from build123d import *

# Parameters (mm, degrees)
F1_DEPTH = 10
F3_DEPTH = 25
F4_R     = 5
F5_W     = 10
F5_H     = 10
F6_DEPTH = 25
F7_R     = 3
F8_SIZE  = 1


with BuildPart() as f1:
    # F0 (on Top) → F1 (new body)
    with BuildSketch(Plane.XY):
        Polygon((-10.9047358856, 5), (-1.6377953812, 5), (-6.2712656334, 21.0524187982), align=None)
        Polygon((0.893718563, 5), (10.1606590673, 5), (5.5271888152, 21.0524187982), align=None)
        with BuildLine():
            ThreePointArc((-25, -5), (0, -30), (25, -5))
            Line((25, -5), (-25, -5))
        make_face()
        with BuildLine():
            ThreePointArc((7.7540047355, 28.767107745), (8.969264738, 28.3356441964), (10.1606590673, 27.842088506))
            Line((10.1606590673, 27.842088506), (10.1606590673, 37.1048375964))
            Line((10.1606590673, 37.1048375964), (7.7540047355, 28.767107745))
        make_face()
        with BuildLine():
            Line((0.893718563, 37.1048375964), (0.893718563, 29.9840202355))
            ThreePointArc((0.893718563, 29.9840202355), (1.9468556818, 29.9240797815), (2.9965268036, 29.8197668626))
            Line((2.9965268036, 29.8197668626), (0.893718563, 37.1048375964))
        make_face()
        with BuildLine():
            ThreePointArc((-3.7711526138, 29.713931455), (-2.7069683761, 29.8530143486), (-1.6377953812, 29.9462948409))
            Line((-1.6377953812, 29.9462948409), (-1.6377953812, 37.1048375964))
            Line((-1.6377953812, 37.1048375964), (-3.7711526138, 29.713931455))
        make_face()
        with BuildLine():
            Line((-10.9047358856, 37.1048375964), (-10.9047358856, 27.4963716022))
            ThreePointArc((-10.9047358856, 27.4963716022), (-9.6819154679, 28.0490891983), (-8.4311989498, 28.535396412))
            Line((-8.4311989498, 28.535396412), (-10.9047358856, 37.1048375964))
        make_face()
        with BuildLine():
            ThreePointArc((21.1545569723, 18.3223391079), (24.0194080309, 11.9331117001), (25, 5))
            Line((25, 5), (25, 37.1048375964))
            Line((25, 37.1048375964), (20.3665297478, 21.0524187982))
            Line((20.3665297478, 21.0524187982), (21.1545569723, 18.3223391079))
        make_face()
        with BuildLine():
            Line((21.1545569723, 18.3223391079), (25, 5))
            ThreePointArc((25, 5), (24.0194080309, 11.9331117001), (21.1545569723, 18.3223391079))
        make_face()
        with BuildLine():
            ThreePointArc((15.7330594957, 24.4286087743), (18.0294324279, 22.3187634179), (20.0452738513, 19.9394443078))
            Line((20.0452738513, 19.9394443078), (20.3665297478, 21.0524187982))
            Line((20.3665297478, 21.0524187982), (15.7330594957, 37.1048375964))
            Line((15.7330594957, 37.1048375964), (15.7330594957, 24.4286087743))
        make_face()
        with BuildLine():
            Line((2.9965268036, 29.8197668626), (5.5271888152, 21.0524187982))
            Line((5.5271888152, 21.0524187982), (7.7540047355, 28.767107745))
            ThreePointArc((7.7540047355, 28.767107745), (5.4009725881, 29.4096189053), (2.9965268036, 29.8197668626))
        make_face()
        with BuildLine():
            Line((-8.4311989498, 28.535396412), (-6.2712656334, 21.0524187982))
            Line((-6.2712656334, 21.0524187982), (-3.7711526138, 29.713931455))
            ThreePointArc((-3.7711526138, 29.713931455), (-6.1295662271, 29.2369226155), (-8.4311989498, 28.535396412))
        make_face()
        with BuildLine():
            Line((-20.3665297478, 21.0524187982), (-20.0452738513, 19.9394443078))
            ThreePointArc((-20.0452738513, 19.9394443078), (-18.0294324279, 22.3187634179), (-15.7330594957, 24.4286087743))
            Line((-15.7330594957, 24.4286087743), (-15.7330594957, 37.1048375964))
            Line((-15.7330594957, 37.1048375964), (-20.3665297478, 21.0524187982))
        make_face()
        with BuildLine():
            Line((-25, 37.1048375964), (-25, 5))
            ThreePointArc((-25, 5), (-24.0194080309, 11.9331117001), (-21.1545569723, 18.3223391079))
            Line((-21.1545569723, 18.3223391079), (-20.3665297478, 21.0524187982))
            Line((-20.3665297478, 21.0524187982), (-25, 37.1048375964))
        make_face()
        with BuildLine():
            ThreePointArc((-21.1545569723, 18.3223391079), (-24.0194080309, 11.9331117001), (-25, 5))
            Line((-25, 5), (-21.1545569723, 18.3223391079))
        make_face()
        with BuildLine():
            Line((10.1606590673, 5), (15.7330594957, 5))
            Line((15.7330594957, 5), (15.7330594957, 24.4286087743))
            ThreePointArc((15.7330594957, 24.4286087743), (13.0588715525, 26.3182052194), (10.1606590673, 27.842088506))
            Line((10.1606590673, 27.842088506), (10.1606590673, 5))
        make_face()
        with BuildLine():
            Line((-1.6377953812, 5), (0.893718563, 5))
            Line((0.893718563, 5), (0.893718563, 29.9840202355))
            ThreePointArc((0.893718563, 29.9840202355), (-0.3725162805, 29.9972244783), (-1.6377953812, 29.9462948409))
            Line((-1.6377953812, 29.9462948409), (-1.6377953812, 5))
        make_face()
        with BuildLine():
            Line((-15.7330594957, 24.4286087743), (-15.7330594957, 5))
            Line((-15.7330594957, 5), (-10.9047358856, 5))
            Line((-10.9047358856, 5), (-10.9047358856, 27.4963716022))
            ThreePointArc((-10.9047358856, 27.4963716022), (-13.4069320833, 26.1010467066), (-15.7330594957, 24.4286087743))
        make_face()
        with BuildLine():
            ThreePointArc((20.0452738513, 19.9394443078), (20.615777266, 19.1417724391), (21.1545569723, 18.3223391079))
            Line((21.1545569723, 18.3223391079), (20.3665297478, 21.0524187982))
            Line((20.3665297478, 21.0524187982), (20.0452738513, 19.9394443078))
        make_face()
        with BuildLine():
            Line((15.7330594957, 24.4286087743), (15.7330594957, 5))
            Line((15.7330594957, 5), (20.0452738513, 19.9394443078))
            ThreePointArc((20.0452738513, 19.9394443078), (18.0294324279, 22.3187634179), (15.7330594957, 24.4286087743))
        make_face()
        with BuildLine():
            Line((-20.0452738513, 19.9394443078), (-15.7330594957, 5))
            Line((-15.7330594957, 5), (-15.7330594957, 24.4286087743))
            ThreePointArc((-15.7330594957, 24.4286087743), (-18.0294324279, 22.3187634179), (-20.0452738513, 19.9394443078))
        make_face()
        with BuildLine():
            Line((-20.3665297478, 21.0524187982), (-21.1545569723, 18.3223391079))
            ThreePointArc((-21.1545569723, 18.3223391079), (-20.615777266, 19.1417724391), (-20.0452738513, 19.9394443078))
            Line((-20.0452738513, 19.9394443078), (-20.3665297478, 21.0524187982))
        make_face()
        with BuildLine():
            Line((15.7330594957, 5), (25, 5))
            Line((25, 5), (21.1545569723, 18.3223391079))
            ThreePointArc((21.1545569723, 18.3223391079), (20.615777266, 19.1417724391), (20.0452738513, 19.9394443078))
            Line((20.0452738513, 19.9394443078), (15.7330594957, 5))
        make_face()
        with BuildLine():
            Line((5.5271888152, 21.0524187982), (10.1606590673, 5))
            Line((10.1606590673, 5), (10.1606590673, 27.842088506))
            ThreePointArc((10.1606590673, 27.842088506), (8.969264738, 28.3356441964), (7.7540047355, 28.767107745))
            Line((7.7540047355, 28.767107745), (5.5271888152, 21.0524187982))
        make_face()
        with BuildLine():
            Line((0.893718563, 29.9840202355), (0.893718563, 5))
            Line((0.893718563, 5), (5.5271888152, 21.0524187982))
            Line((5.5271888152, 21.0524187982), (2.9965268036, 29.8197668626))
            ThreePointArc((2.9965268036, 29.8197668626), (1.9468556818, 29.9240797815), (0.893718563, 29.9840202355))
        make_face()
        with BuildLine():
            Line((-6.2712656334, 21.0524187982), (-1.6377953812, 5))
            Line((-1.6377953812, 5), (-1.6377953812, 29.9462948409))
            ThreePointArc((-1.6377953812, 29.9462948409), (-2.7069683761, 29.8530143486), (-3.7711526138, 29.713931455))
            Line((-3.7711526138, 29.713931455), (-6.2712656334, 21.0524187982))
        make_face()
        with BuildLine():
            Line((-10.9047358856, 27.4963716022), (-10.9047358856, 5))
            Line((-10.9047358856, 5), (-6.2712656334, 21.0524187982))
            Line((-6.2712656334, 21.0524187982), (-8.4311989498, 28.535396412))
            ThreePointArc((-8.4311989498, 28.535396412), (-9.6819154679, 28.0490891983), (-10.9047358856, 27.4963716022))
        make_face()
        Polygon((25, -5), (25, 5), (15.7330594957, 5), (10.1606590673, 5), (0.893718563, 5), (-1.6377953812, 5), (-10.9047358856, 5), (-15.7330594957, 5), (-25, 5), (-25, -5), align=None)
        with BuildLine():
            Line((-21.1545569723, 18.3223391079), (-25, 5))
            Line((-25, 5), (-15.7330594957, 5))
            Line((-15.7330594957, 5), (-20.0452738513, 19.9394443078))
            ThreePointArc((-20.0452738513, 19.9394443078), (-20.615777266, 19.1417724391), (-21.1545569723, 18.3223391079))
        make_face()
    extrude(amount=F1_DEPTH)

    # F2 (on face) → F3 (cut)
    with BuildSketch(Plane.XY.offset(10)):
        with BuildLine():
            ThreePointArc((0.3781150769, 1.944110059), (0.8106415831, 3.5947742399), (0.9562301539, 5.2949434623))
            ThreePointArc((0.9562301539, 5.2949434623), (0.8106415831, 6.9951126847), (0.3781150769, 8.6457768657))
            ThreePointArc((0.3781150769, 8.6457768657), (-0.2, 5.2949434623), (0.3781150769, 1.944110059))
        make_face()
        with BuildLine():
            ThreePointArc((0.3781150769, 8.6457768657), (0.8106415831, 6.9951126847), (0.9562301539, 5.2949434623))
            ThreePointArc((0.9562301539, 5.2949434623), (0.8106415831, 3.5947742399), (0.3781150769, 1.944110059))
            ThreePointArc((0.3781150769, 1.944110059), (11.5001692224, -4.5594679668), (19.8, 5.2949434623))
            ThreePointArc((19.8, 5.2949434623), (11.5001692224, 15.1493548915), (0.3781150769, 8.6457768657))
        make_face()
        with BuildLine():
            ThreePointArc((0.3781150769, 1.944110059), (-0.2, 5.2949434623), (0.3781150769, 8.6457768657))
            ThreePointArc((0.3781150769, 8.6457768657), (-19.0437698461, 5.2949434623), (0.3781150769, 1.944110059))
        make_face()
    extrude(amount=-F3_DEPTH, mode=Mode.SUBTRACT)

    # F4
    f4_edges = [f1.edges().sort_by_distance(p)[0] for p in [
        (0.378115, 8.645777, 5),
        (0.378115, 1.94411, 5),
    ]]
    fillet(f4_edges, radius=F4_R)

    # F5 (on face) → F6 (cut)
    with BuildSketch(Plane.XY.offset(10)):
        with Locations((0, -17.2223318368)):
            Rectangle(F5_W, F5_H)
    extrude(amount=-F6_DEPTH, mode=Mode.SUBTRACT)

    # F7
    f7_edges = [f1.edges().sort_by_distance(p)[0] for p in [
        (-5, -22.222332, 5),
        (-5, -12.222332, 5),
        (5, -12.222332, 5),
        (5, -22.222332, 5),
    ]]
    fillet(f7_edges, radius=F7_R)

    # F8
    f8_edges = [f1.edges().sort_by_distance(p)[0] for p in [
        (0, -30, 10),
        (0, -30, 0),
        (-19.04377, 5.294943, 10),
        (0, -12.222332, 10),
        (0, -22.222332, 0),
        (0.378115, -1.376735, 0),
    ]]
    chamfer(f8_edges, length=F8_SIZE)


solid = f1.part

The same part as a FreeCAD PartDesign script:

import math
import FreeCAD as App
import Part
import Sketcher
from FreeCAD import Vector


def edges_at(feature, points):
    """Names of the edges that pass closest to the given points."""
    edges = feature.Shape.Edges
    near = lambda p: min(range(len(edges)), key=lambda i: edges[i].distToShape(Part.Vertex(*p))[0])
    return sorted({f"Edge{near(p) + 1}" for p in points})


def add_polygon(sketch, points):
    """Adds a closed chain of lines whose ends are joined by coincident constraints."""
    first, n = sketch.GeometryCount, len(points)
    for a, b in zip(points, points[1:] + points[:1]):
        sketch.addGeometry(Part.LineSegment(App.Vector(*a, 0), App.Vector(*b, 0)), False)
    for i in range(n):
        sketch.addConstraint(Sketcher.Constraint("Coincident", first + i, 2, first + (i + 1) % n, 1))

doc = App.newDocument("Part")
body = doc.addObject("PartDesign::Body", "Body")

# Sketch on XY plane
sketch1 = body.newObject("Sketcher::SketchObject", "Sketch")
sketch1.AttachmentSupport = (doc.getObject("XY_Plane"), [""])
sketch1.MapMode = "FlatFace"
sketch1.addGeometry(Part.LineSegment(Vector(-25, 37.1, 0), Vector(-25, -5, 0)), False)
sketch1.addGeometry(Part.ArcOfCircle(Part.Circle(Vector(0, -5, 0), Vector(0, 0, 1), 25), math.radians(180), math.radians(360)), False)
sketch1.addGeometry(Part.LineSegment(Vector(25, -5, 0), Vector(25, 37.1, 0)), False)
sketch1.addGeometry(Part.LineSegment(Vector(25, 37.1, 0), Vector(20.4, 21.1, 0)), False)
sketch1.addGeometry(Part.LineSegment(Vector(20.4, 21.1, 0), Vector(15.7, 37.1, 0)), False)
sketch1.addGeometry(Part.LineSegment(Vector(15.7, 37.1, 0), Vector(15.7, 24.4, 0)), False)
sketch1.addGeometry(Part.ArcOfCircle(Part.Circle(Vector(0, 5, 0), Vector(0, 0, 1), 25), math.radians(51), math.radians(66.02)), False)
sketch1.addGeometry(Part.LineSegment(Vector(10.2, 27.8, 0), Vector(10.2, 37.1, 0)), False)
sketch1.addGeometry(Part.LineSegment(Vector(10.2, 37.1, 0), Vector(7.8, 28.8, 0)), False)
sketch1.addGeometry(Part.ArcOfCircle(Part.Circle(Vector(0, 5, 0), Vector(0, 0, 1), 25), math.radians(71.93), math.radians(83.12)), False)
sketch1.addGeometry(Part.LineSegment(Vector(3, 29.8, 0), Vector(0.9, 37.1, 0)), False)
sketch1.addGeometry(Part.LineSegment(Vector(0.9, 37.1, 0), Vector(0.9, 30, 0)), False)
sketch1.addGeometry(Part.ArcOfCircle(Part.Circle(Vector(0, 5, 0), Vector(0, 0, 1), 25), math.radians(87.95), math.radians(93.76)), False)
sketch1.addGeometry(Part.LineSegment(Vector(-1.6, 29.9, 0), Vector(-1.6, 37.1, 0)), False)
sketch1.addGeometry(Part.LineSegment(Vector(-1.6, 37.1, 0), Vector(-3.8, 29.7, 0)), False)
sketch1.addGeometry(Part.ArcOfCircle(Part.Circle(Vector(0, 5, 0), Vector(0, 0, 1), 25), math.radians(98.68), math.radians(109.71)), False)
sketch1.addGeometry(Part.LineSegment(Vector(-8.4, 28.5, 0), Vector(-10.9, 37.1, 0)), False)
sketch1.addGeometry(Part.LineSegment(Vector(-10.9, 37.1, 0), Vector(-10.9, 27.5, 0)), False)
sketch1.addGeometry(Part.ArcOfCircle(Part.Circle(Vector(0, 5, 0), Vector(0, 0, 1), 25), math.radians(115.86), math.radians(129)), False)
sketch1.addGeometry(Part.LineSegment(Vector(-15.7, 24.4, 0), Vector(-15.7, 37.1, 0)), False)
sketch1.addGeometry(Part.LineSegment(Vector(-15.7, 37.1, 0), Vector(-20.4, 21.1, 0)), False)
sketch1.addGeometry(Part.LineSegment(Vector(-20.4, 21.1, 0), Vector(-25, 37.1, 0)), False)
sketch1.addConstraint(Sketcher.Constraint("Tangent", 0, 2, 1, 1))
sketch1.addConstraint(Sketcher.Constraint("Tangent", 1, 2, 2, 1))
sketch1.addConstraint(Sketcher.Constraint("Coincident", 2, 2, 3, 1))
sketch1.addConstraint(Sketcher.Constraint("Coincident", 3, 2, 4, 1))
sketch1.addConstraint(Sketcher.Constraint("Coincident", 4, 2, 5, 1))
sketch1.addConstraint(Sketcher.Constraint("Coincident", 5, 2, 6, 1))
sketch1.addConstraint(Sketcher.Constraint("Coincident", 6, 2, 7, 1))
sketch1.addConstraint(Sketcher.Constraint("Coincident", 7, 2, 8, 1))
sketch1.addConstraint(Sketcher.Constraint("Coincident", 8, 2, 9, 1))
sketch1.addConstraint(Sketcher.Constraint("Coincident", 9, 2, 10, 1))
sketch1.addConstraint(Sketcher.Constraint("Coincident", 10, 2, 11, 1))
sketch1.addConstraint(Sketcher.Constraint("Coincident", 11, 2, 12, 1))
sketch1.addConstraint(Sketcher.Constraint("Coincident", 12, 2, 13, 1))
sketch1.addConstraint(Sketcher.Constraint("Coincident", 13, 2, 14, 1))
sketch1.addConstraint(Sketcher.Constraint("Coincident", 14, 2, 15, 1))
sketch1.addConstraint(Sketcher.Constraint("Coincident", 15, 2, 16, 1))
sketch1.addConstraint(Sketcher.Constraint("Coincident", 16, 2, 17, 1))
sketch1.addConstraint(Sketcher.Constraint("Coincident", 17, 2, 18, 1))
sketch1.addConstraint(Sketcher.Constraint("Coincident", 18, 2, 19, 1))
sketch1.addConstraint(Sketcher.Constraint("Coincident", 19, 2, 20, 1))
sketch1.addConstraint(Sketcher.Constraint("Coincident", 20, 2, 21, 1))
sketch1.addConstraint(Sketcher.Constraint("Coincident", 21, 2, 0, 1))
sketch1.addConstraint(Sketcher.Constraint("Vertical", 0))
sketch1.addConstraint(Sketcher.Constraint("Vertical", 2))
sketch1.addConstraint(Sketcher.Constraint("Vertical", 5))
sketch1.addConstraint(Sketcher.Constraint("Vertical", 7))
sketch1.addConstraint(Sketcher.Constraint("Vertical", 11))
sketch1.addConstraint(Sketcher.Constraint("Vertical", 13))
sketch1.addConstraint(Sketcher.Constraint("Vertical", 17))
sketch1.addConstraint(Sketcher.Constraint("Vertical", 19))
sketch1.addConstraint(Sketcher.Constraint("Coincident", 9, 3, 6, 3))
sketch1.addConstraint(Sketcher.Constraint("Coincident", 12, 3, 6, 3))
sketch1.addConstraint(Sketcher.Constraint("Coincident", 15, 3, 6, 3))
sketch1.addConstraint(Sketcher.Constraint("Coincident", 18, 3, 6, 3))
sketch1.addConstraint(Sketcher.Constraint("Equal", 1, 6))
sketch1.addConstraint(Sketcher.Constraint("Equal", 6, 9))
sketch1.addConstraint(Sketcher.Constraint("Equal", 9, 12))
sketch1.addConstraint(Sketcher.Constraint("Equal", 12, 15))
sketch1.addConstraint(Sketcher.Constraint("Equal", 15, 18))
sketch1.addConstraint(Sketcher.Constraint("Symmetric", 1, 3, 6, 3, -1, 1))
sketch1.addConstraint(Sketcher.Constraint("Symmetric", 5, 2, 18, 2, -2))
sketch1.addConstraint(Sketcher.Constraint("Symmetric", 3, 2, 20, 2, -2))
sketch1.addConstraint(Sketcher.Constraint("Parallel", 3, 8))
sketch1.addConstraint(Sketcher.Constraint("Parallel", 4, 10))
sketch1.addConstraint(Sketcher.Constraint("Parallel", 8, 14))
sketch1.addConstraint(Sketcher.Constraint("Parallel", 10, 16))
sketch1.addConstraint(Sketcher.Constraint("Parallel", 14, 20))
sketch1.addConstraint(Sketcher.Constraint("Parallel", 16, 21))
sketch1.addConstraint(Sketcher.Constraint("Horizontal", 2, 2, 4, 2))
sketch1.addConstraint(Sketcher.Constraint("Horizontal", 4, 2, 7, 2))
sketch1.addConstraint(Sketcher.Constraint("Horizontal", 7, 2, 10, 2))
sketch1.addConstraint(Sketcher.Constraint("Horizontal", 10, 2, 13, 2))
sketch1.addConstraint(Sketcher.Constraint("Horizontal", 13, 2, 16, 2))
sketch1.addConstraint(Sketcher.Constraint("Horizontal", 16, 2, 19, 2))
sketch1.addConstraint(Sketcher.Constraint("Radius", 1, 25.0))
sketch1.addConstraint(Sketcher.Constraint("DistanceY", 1, 3, -1, 1, 5.0))
sketch1.addConstraint(Sketcher.Constraint("DistanceY", 5, 2, 5, 1, 12.676229))
sketch1.addConstraint(Sketcher.Constraint("DistanceY", 7, 1, 7, 2, 9.262749))
sketch1.addConstraint(Sketcher.Constraint("DistanceX", 15, 2, -1, 1, 8.431199))
sketch1.addConstraint(Sketcher.Constraint("DistanceX", 6, 2, 5, 2, 5.5724))
sketch1.addConstraint(Sketcher.Constraint("DistanceY", 5, 2, 8, 2, 4.338499))
sketch1.addConstraint(Sketcher.Constraint("DistanceX", 12, 2, 8, 2, 9.3918))
sketch1.addConstraint(Sketcher.Constraint("DistanceY", 11, 2, 11, 1, 7.120817))
pad1 = body.newObject("PartDesign::Pad", "Pad")
pad1.Profile = sketch1
pad1.Length = 10

# Sketch on XY plane
sketch2 = body.newObject("Sketcher::SketchObject", "Sketch001")
sketch2.AttachmentSupport = (doc.getObject("XY_Plane"), [""])
sketch2.MapMode = "FlatFace"
sketch2.AttachmentOffset = App.Placement(Vector(0, 0, 10), App.Rotation())
sketch2.addGeometry(Part.ArcOfCircle(Part.Circle(Vector(10, 5, 0), Vector(0, 0, 1), 10), math.radians(-160), math.radians(0)), False)
sketch2.addGeometry(Part.ArcOfCircle(Part.Circle(Vector(10, 5, 0), Vector(0, 0, 1), 10), math.radians(0), math.radians(160)), False)
sketch2.addGeometry(Part.ArcOfCircle(Part.Circle(Vector(-9, 5, 0), Vector(0, 0, 1), 10), math.radians(20), math.radians(340)), False)
sketch2.addConstraint(Sketcher.Constraint("Tangent", 0, 2, 1, 1))
sketch2.addConstraint(Sketcher.Constraint("Coincident", 1, 2, 2, 1))
sketch2.addConstraint(Sketcher.Constraint("Coincident", 2, 2, 0, 1))
sketch2.addConstraint(Sketcher.Constraint("Equal", 0, 1))
sketch2.addConstraint(Sketcher.Constraint("Equal", 1, 2))
sketch2.addConstraint(Sketcher.Constraint("Horizontal", 1, 3, 2, 3))
sketch2.addConstraint(Sketcher.Constraint("Horizontal", 2, 3, 0, 2))
sketch2.addConstraint(Sketcher.Constraint("Radius", 0, 10.0))
sketch2.addConstraint(Sketcher.Constraint("DistanceX", -1, 1, 0, 3, 9.8))
sketch2.addConstraint(Sketcher.Constraint("DistanceX", 2, 3, -1, 1, 9.04377))
sketch2.addConstraint(Sketcher.Constraint("DistanceY", -1, 1, 2, 2, 1.94411))
pocket1 = body.newObject("PartDesign::Pocket", "Pocket")
pocket1.Profile = sketch2
pocket1.Length = 25
doc.recompute()

fillet = body.newObject("PartDesign::Fillet", "Fillet")
fillet.Base = (pocket1, edges_at(pocket1, [(0.378, 8.646, 5), (0.378, 1.944, 5)]))
fillet.Radius = 5

# Sketch on XY plane
sketch3 = body.newObject("Sketcher::SketchObject", "Sketch002")
sketch3.AttachmentSupport = (doc.getObject("XY_Plane"), [""])
sketch3.MapMode = "FlatFace"
sketch3.AttachmentOffset = App.Placement(Vector(0, 0, 10), App.Rotation())
add_polygon(sketch3, [(-5, -12), (-5, -22), (5, -22), (5, -12)])  # lines 0-3
sketch3.addConstraint(Sketcher.Constraint("Vertical", 0))
sketch3.addConstraint(Sketcher.Constraint("Horizontal", 1))
sketch3.addConstraint(Sketcher.Constraint("Vertical", 2))
sketch3.addConstraint(Sketcher.Constraint("Horizontal", 3))
sketch3.addConstraint(Sketcher.Constraint("Equal", 3, 0))
sketch3.addConstraint(Sketcher.Constraint("DistanceX", 1, 1, 1, 2, 10.0))
sketch3.addConstraint(Sketcher.Constraint("DistanceX", 0, 2, -1, 1, 5.0))
sketch3.addConstraint(Sketcher.Constraint("DistanceY", 0, 2, -1, 1, 22.222332))
pocket2 = body.newObject("PartDesign::Pocket", "Pocket001")
pocket2.Profile = sketch3
pocket2.Length = 25
doc.recompute()

fillet2 = body.newObject("PartDesign::Fillet", "Fillet001")
fillet2.Base = (pocket2, edges_at(pocket2, [
    (-5, -22.222, 5),
    (-5, -12.222, 5),
    (5, -12.222, 5),
    (5, -22.222, 5),
]))
fillet2.Radius = 3
doc.recompute()

chamfer = body.newObject("PartDesign::Chamfer", "Chamfer")
chamfer.Base = (fillet2, edges_at(fillet2, [
    (0, -30, 10),
    (0, -30, 0),
    (-19.044, 5.295, 10),
    (0, -12.222, 10),
    (0, -22.222, 0),
    (0.378, -1.377, 0),
]))
chamfer.Size = 1

doc.recompute()
